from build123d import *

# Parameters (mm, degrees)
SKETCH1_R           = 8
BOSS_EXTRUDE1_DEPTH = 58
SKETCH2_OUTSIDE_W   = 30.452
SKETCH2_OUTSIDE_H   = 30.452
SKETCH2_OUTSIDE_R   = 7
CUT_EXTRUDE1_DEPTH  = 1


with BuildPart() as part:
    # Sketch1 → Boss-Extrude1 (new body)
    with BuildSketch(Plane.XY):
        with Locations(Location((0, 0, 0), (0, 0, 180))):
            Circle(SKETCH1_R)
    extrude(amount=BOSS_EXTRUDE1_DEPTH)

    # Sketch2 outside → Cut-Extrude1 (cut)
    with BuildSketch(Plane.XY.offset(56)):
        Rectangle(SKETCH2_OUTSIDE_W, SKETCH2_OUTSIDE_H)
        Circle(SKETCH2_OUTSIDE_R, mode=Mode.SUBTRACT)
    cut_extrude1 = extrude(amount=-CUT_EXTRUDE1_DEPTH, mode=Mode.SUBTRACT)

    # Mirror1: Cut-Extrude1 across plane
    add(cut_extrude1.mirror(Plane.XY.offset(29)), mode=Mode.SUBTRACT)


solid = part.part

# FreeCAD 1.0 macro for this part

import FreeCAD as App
import Part
import Sketcher


def add_polygon(sketch, points):
    """Adds a closed chain of lines whose ends are joined by coincident constraints."""
    first, n = sketch.GeometryCount, len(points)
    for a, b in zip(points, points[1:] + points[:1]):
        sketch.addGeometry(Part.LineSegment(App.Vector(*a, 0), App.Vector(*b, 0)), False)
    for i in range(n):
        sketch.addConstraint(Sketcher.Constraint("Coincident", first + i, 2, first + (i + 1) % n, 1))

doc = App.newDocument("Part")
body = doc.addObject("PartDesign::Body", "Body")

# Sketch on XY plane
sketch1 = doc.addObject("Sketcher::SketchObject", "Sketch")
body.addObject(sketch1)
sketch1.AttachmentSupport = (doc.XY_Plane, [""])
sketch1.MapMode = "FlatFace"
sketch1.addGeometry(Part.Circle(App.Vector(0, 0, 0), App.Vector(0, 0, 1), 8), False)
sketch1.addConstraint([
    Sketcher.Constraint("Coincident", 0, 3, -1, 1),
    Sketcher.Constraint("Diameter", 0, 16.0),
])
pad1 = doc.addObject("PartDesign::Pad", "Pad")
body.addObject(pad1)
pad1.Profile = sketch1
pad1.Length = 58

# Sketch on XY plane
sketch2 = doc.addObject("Sketcher::SketchObject", "Sketch001")
body.addObject(sketch2)
sketch2.AttachmentSupport = (doc.XY_Plane, [""])
sketch2.MapMode = "FlatFace"
sketch2.AttachmentOffset = App.Placement(App.Vector(0, 0, 56), App.Rotation())
add_polygon(sketch2, [(-15.226, 15.226), (-15.226, -15.226), (15.226, -15.226), (15.226, 15.226)])  # lines 0-3
sketch2.addGeometry(Part.Circle(App.Vector(0, 0, 0), App.Vector(0, 0, 1), 7), False)  # 4
sketch2.addConstraint([
    Sketcher.Constraint("Vertical", 0),
    Sketcher.Constraint("Horizontal", 1),
    Sketcher.Constraint("Vertical", 2),
    Sketcher.Constraint("Horizontal", 3),
    Sketcher.Constraint("Coincident", 4, 3, -1, 1),
    Sketcher.Constraint("Symmetric", 0, 2, 2, 2, -1, 1),
    Sketcher.Constraint("Equal", 3, 0),
    Sketcher.Constraint("Diameter", 4, 14.0),
    Sketcher.Constraint("DistanceX", 1, 1, 1, 2, 30.452),
])
pocket1 = doc.addObject("PartDesign::Pocket", "Pocket")
body.addObject(pocket1)
pocket1.Profile = sketch2
pocket1.Length = 1
doc.recompute()

datumplane = doc.addObject("PartDesign::Plane", "DatumPlane")
body.addObject(datumplane)
datumplane.AttachmentSupport = (doc.XY_Plane, [""])
datumplane.MapMode = "FlatFace"
datumplane.AttachmentOffset = App.Placement(App.Vector(0, 0, 29), App.Rotation())
mirrored = doc.addObject("PartDesign::Mirrored", "Mirrored")
body.addObject(mirrored)
mirrored.Originals = [pocket1]
mirrored.MirrorPlane = (datumplane, [""])
body.Tip = mirrored

doc.recompute()
